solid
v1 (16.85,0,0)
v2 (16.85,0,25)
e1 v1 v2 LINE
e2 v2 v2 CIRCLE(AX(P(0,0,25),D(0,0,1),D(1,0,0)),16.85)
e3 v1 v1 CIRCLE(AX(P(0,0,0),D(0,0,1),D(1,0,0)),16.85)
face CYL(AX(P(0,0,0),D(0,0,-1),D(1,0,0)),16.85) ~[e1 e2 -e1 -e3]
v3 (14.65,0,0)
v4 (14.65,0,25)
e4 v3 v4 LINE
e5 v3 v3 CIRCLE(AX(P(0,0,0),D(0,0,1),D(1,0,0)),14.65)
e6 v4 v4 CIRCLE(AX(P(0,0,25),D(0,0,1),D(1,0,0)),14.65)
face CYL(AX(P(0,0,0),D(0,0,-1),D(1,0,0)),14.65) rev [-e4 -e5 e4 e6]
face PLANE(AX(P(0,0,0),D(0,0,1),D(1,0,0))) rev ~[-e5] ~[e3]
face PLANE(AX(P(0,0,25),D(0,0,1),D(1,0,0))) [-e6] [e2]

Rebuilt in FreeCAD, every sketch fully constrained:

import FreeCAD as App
import Part
import Sketcher

doc = App.newDocument("Part")
body = doc.addObject("PartDesign::Body", "Body")

# Sketch on XY plane
sketch1 = body.newObject("Sketcher::SketchObject", "Sketch")
sketch1.AttachmentSupport = (doc.getObject("XY_Plane"), [""])
sketch1.MapMode = "FlatFace"
sketch1.addGeometry([
    Part.Circle(App.Vector(0, 0, 0), App.Vector(0, 0, 1), 16.85),
    Part.Circle(App.Vector(0, 0, 0), App.Vector(0, 0, 1), 14.65),
], False)
sketch1.addConstraint([
    Sketcher.Constraint("Coincident", 0, 3, -1, 1),
    Sketcher.Constraint("Coincident", 1, 3, -1, 1),
    Sketcher.Constraint("Diameter", 0, 33.7),
    Sketcher.Constraint("Diameter", 1, 29.3),
])
pad1 = body.newObject("PartDesign::Pad", "Pad")
pad1.Profile = sketch1
pad1.Length = 25

doc.recompute()
